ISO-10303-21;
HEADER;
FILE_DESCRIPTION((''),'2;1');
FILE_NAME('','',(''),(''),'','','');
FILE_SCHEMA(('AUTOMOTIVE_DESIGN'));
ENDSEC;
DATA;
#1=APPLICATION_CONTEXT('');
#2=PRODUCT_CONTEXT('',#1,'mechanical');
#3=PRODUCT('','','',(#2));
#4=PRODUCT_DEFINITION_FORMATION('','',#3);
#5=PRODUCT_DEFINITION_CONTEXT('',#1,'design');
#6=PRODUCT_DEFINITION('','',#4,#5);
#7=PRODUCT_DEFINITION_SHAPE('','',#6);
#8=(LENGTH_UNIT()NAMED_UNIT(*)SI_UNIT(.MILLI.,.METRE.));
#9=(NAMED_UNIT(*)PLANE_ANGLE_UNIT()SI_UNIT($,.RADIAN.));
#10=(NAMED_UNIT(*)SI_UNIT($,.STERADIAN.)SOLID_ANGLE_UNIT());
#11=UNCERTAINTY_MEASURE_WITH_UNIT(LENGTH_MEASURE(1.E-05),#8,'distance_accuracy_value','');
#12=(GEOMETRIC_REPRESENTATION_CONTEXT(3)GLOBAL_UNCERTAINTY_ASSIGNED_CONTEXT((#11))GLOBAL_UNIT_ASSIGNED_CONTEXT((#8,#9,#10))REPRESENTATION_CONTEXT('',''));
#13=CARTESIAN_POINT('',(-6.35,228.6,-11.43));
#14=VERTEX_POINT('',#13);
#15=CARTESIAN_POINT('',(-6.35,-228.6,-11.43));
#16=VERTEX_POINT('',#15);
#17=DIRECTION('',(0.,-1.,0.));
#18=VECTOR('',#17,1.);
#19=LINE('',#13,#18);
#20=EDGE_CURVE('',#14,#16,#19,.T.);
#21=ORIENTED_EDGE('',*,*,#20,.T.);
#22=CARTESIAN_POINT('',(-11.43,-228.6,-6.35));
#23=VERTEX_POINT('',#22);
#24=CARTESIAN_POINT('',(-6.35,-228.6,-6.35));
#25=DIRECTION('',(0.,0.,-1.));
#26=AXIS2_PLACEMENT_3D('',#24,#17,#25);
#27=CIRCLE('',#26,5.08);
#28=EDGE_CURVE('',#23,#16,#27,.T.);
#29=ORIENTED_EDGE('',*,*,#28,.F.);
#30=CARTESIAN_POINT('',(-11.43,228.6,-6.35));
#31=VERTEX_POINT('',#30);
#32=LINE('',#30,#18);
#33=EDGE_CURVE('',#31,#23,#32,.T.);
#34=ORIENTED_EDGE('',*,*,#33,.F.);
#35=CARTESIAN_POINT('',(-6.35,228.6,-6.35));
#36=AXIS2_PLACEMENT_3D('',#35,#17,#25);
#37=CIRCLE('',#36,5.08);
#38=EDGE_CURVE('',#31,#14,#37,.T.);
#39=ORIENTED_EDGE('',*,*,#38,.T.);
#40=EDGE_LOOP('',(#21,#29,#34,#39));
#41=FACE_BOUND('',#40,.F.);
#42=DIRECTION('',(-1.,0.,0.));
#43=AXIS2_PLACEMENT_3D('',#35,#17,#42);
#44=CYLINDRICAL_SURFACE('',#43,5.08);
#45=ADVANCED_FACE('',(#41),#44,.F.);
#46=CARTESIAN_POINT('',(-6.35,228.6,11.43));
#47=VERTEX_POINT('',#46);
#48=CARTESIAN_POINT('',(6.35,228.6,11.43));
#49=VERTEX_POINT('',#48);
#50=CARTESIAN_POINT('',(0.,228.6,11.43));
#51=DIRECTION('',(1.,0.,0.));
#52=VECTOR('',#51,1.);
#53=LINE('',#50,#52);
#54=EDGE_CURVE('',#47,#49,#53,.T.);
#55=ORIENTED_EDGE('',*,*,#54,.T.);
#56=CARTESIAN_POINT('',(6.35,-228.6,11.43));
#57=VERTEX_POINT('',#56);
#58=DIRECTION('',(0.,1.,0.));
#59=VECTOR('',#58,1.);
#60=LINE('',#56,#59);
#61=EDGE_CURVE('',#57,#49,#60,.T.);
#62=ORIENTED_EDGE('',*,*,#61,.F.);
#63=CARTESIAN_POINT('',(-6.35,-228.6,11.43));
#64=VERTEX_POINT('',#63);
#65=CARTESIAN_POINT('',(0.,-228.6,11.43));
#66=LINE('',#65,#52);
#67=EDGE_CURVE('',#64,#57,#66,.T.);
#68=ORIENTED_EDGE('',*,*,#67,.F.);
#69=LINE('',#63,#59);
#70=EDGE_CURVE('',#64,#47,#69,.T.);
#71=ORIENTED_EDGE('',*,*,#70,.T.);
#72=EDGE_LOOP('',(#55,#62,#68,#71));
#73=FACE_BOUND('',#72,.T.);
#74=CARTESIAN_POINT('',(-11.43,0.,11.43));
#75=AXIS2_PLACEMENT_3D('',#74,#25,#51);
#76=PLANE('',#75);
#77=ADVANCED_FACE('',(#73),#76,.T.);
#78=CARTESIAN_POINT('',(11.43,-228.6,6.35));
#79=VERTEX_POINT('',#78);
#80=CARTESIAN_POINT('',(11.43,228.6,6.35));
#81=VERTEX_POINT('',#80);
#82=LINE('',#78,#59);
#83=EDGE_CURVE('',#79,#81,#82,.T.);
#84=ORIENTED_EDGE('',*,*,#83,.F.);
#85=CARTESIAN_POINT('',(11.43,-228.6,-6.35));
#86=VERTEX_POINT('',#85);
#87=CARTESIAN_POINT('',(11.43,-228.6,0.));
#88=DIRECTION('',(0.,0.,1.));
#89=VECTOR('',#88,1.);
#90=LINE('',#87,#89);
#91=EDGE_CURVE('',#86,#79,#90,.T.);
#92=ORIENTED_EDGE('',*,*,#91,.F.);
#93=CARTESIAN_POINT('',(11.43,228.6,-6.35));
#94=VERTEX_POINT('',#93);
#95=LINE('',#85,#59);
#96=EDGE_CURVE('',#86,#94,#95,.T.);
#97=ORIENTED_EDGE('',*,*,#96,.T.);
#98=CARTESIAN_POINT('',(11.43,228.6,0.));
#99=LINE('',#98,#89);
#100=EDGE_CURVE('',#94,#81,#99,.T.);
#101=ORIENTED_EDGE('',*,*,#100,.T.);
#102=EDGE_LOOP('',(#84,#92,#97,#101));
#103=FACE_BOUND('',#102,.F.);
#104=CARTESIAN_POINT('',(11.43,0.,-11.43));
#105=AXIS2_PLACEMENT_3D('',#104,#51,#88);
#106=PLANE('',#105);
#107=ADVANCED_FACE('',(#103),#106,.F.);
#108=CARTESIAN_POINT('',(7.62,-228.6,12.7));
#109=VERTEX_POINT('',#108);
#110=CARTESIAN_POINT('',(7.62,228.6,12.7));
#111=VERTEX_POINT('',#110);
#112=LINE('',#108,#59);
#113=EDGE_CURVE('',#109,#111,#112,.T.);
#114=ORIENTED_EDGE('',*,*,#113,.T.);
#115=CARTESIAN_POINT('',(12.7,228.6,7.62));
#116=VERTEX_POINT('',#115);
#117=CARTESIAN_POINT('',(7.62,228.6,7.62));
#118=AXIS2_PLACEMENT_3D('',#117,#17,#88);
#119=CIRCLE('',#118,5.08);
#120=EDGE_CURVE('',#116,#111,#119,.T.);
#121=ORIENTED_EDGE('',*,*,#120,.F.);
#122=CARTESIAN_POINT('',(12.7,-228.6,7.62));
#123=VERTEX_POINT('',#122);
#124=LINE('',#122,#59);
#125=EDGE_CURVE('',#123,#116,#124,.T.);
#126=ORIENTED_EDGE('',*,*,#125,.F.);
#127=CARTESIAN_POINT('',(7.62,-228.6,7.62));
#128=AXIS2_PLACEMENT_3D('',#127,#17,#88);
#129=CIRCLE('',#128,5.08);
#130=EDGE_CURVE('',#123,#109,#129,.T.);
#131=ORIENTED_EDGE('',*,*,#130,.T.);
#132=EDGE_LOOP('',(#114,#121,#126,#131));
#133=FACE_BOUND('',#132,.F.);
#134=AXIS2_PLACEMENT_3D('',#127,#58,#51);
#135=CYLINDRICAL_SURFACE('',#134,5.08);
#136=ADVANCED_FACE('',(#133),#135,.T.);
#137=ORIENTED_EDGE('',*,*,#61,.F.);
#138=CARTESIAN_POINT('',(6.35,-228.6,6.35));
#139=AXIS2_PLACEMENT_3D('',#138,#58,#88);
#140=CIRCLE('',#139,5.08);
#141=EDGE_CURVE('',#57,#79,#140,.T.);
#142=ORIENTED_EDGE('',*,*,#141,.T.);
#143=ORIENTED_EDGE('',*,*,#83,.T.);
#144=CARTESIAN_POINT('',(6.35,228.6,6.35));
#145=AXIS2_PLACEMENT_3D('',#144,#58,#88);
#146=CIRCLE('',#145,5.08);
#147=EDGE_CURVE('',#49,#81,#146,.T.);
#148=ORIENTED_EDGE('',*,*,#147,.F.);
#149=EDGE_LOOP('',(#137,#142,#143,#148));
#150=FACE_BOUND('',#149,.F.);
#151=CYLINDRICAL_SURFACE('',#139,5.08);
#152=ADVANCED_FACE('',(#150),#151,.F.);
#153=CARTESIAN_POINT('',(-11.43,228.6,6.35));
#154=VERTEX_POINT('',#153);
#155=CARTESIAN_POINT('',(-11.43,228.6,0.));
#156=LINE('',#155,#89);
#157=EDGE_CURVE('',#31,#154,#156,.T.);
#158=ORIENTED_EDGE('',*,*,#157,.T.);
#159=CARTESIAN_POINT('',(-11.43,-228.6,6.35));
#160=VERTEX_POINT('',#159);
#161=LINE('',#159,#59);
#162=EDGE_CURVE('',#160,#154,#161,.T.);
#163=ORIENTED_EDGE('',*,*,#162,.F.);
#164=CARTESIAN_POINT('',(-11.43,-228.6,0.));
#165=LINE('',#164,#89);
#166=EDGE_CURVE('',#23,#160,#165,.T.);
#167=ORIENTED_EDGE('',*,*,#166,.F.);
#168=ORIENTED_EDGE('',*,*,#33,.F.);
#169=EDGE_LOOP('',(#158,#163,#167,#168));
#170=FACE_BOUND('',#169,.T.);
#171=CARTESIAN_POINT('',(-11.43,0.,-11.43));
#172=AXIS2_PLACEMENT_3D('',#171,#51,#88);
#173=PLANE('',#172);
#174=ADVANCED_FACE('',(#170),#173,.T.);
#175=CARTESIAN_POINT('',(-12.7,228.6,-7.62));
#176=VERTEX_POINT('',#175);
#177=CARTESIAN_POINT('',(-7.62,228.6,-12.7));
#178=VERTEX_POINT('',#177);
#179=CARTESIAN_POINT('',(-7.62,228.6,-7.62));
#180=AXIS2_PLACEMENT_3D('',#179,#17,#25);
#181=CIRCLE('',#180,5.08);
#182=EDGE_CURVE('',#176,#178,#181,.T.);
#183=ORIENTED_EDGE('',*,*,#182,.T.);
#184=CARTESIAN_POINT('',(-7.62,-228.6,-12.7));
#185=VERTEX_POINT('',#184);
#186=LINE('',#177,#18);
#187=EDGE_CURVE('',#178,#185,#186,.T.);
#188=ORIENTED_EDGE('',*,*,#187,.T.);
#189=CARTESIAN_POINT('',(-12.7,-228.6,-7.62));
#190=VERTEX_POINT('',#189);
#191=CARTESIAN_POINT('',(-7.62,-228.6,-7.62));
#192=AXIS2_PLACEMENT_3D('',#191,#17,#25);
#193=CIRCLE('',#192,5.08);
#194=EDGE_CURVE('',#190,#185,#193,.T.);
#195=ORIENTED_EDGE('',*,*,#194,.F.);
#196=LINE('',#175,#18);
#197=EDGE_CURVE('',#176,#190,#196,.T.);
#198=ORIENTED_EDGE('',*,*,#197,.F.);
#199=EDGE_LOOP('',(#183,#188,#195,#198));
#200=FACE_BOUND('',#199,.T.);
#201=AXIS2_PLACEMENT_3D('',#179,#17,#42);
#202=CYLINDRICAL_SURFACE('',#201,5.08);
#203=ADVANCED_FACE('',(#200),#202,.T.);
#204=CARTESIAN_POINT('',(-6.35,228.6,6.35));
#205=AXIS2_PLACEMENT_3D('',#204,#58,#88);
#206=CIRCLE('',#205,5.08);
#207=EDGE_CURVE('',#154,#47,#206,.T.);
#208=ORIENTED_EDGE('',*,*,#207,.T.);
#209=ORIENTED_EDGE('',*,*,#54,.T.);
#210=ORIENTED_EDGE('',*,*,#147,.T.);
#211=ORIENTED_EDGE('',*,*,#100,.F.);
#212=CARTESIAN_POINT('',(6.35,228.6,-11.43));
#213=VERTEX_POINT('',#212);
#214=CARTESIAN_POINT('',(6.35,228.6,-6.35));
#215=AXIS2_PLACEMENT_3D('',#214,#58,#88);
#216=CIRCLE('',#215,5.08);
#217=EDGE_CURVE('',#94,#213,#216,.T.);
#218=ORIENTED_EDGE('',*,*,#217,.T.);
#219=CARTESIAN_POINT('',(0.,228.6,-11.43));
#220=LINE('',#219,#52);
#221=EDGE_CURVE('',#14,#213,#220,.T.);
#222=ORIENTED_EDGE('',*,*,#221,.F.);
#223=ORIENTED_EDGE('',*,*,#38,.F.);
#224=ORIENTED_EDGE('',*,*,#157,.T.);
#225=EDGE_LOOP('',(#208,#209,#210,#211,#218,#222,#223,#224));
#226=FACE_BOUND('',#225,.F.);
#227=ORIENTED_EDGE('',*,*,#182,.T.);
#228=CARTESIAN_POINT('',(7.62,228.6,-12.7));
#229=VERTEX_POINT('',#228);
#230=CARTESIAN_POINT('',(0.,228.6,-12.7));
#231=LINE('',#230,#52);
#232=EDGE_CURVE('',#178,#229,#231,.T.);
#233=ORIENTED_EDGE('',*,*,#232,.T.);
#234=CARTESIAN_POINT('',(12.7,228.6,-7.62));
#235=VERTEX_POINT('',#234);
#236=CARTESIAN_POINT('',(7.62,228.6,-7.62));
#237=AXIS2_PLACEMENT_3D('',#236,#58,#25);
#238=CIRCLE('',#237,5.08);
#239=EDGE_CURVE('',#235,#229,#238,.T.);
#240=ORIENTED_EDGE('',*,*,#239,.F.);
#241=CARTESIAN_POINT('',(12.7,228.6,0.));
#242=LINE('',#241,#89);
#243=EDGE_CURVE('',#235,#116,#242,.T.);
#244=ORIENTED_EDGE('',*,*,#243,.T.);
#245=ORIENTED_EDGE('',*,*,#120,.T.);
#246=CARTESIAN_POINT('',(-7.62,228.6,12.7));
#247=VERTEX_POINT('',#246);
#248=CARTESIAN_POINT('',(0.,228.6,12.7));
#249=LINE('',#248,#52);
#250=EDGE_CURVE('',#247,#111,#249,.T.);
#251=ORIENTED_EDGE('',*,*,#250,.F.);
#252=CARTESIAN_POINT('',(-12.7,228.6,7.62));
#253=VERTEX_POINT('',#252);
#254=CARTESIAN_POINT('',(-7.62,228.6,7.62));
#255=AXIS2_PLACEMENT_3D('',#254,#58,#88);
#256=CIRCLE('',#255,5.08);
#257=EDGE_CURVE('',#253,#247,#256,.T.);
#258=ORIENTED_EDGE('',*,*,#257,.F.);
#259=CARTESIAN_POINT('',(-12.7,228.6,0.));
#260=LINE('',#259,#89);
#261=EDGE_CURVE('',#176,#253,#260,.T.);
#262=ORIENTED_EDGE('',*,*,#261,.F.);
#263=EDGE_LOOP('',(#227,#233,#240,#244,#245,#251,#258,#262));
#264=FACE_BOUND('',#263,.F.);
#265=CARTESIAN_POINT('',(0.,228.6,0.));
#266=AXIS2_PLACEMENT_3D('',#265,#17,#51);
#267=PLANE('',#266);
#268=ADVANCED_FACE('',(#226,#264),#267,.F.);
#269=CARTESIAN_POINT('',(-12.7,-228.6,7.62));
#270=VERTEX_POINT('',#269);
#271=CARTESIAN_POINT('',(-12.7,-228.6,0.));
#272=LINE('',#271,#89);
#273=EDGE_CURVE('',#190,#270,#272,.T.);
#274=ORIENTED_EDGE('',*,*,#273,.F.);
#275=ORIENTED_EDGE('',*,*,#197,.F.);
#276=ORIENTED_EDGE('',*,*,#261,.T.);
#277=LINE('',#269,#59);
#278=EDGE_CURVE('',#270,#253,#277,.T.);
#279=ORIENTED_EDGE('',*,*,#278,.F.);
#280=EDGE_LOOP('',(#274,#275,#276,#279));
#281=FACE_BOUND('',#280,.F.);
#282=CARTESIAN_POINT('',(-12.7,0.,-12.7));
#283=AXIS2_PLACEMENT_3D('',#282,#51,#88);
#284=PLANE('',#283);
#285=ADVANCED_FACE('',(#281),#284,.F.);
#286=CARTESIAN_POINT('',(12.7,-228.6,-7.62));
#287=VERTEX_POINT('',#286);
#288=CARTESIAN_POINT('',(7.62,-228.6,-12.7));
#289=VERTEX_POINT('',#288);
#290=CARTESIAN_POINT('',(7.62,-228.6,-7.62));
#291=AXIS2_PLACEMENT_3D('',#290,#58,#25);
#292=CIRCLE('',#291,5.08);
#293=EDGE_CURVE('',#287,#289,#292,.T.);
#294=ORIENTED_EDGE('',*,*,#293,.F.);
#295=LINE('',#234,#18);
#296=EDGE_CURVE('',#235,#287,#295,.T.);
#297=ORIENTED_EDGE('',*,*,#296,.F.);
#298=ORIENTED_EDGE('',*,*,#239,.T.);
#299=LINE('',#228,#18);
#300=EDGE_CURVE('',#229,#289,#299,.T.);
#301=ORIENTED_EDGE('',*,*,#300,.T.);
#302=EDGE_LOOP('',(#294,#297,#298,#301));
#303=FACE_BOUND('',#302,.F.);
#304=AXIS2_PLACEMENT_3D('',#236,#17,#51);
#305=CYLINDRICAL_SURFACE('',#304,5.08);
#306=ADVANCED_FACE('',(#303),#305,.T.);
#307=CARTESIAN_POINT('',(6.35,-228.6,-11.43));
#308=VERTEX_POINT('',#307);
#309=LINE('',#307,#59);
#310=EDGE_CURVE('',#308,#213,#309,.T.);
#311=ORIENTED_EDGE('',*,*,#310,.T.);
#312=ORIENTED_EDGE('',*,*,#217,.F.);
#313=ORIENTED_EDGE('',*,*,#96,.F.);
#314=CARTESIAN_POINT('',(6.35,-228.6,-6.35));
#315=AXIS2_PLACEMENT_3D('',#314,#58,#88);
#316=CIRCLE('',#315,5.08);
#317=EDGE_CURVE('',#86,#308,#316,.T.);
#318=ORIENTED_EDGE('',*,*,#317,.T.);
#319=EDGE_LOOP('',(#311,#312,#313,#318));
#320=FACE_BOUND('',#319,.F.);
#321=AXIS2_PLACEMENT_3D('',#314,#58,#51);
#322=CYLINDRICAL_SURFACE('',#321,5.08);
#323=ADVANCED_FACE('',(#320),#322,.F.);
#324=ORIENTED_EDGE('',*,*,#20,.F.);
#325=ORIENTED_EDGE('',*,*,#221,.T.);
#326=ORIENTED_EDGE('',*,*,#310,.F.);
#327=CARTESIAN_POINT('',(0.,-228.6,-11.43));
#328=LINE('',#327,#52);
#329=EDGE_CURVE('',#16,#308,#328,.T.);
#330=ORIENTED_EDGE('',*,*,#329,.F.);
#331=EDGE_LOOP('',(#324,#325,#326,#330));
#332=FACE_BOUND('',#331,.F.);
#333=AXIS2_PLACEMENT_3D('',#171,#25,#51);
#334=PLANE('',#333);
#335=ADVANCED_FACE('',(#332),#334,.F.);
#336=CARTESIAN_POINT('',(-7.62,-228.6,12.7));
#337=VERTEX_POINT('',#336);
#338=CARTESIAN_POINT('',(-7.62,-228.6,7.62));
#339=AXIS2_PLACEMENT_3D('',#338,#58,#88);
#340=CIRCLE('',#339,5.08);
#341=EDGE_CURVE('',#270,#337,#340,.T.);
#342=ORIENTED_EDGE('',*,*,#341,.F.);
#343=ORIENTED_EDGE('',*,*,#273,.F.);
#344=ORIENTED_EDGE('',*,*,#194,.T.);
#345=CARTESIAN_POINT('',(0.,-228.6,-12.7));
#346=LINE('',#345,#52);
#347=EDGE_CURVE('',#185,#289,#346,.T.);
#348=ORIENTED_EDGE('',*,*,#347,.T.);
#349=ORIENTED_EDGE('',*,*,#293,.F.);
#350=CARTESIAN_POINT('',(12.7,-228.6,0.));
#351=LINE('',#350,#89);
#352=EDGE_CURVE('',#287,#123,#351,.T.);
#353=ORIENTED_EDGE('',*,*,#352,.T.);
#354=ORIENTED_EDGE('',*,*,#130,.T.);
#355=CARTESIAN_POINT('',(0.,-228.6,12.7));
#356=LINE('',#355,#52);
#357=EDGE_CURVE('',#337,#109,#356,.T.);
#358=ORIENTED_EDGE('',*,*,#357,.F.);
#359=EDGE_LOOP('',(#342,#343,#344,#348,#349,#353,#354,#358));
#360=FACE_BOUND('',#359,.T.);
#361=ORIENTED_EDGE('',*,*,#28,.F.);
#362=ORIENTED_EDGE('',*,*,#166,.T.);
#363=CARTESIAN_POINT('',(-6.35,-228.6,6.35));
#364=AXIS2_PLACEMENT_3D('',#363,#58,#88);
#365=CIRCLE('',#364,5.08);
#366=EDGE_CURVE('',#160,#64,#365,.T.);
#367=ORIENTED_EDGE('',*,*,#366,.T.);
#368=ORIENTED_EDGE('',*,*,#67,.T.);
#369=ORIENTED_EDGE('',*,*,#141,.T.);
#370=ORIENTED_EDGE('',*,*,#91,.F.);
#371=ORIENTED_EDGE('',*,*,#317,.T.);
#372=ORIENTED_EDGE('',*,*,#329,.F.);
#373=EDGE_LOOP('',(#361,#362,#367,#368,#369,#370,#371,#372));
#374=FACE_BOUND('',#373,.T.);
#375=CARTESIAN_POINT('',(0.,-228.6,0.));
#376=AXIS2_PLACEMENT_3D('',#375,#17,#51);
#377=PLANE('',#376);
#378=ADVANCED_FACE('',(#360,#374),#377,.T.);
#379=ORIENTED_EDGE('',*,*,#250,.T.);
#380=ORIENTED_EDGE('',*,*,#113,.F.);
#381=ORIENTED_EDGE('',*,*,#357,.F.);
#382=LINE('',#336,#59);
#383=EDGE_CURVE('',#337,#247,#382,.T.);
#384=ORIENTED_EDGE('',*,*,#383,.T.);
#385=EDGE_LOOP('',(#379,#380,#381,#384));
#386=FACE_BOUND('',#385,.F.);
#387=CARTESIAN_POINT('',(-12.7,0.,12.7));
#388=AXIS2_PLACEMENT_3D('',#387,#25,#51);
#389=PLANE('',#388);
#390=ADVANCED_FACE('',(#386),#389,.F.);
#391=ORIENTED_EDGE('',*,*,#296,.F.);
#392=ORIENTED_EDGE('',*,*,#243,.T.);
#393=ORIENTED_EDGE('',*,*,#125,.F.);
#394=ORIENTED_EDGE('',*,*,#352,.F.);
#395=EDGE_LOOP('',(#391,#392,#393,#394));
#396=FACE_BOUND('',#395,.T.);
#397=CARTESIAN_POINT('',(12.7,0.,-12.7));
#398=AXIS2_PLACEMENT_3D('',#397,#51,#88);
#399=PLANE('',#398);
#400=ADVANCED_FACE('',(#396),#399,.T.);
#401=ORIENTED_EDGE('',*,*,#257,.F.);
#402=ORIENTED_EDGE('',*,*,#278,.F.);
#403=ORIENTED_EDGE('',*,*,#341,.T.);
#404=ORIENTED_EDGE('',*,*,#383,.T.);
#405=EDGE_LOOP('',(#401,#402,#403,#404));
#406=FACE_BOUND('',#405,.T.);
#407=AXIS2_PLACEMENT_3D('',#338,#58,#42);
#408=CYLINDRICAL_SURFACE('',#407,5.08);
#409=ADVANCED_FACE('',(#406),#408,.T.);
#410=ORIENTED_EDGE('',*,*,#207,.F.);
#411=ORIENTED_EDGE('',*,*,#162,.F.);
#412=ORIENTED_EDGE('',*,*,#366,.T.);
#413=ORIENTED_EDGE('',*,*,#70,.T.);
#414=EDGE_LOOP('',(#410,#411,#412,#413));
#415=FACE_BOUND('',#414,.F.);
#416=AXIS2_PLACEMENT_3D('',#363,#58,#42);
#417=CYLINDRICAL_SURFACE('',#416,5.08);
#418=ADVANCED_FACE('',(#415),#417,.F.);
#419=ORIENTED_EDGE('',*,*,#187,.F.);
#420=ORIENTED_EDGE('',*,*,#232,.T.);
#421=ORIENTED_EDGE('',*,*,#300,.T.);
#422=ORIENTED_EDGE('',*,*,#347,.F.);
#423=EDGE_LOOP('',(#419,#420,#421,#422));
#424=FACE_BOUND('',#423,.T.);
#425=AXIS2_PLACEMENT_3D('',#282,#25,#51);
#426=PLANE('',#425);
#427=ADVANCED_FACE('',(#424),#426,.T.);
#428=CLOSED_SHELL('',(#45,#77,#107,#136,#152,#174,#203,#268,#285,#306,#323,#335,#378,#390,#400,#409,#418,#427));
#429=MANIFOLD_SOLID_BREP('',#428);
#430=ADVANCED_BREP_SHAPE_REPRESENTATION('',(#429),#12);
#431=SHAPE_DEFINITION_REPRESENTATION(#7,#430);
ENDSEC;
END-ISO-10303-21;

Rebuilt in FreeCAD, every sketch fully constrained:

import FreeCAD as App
import Part
import Sketcher
Q = App.Units.Quantity


def edges_at(feature, points):
    """Names of the edges that pass closest to the given points."""
    edges = feature.Shape.Edges
    near = lambda p: min(range(len(edges)), key=lambda i: edges[i].distToShape(Part.Vertex(*p))[0])
    return sorted({f"Edge{near(p) + 1}" for p in points})


def add_polygon(sketch, points):
    """Adds a closed chain of lines whose ends are joined by coincident constraints."""
    first, n = sketch.GeometryCount, len(points)
    for a, b in zip(points, points[1:] + points[:1]):
        sketch.addGeometry(Part.LineSegment(App.Vector(*a, 0), App.Vector(*b, 0)), False)
    for i in range(n):
        sketch.addConstraint(Sketcher.Constraint("Coincident", first + i, 2, first + (i + 1) % n, 1))

doc = App.newDocument("Part")
body = doc.addObject("PartDesign::Body", "Body")

# Sketch on XZ plane
sketch1 = body.newObject("Sketcher::SketchObject", "Sketch")
sketch1.AttachmentSupport = (doc.getObject("XZ_Plane"), [""])
sketch1.MapMode = "FlatFace"
add_polygon(sketch1, [(-12.7, 12.7), (-12.7, -12.7), (12.7, -12.7), (12.7, 12.7)])  # lines 0-3
add_polygon(sketch1, [(11.43, -11.43), (-11.43, -11.43), (-11.43, 11.43), (11.43, 11.43)])  # lines 4-7
sketch1.addConstraint([
    Sketcher.Constraint("Vertical", 0),
    Sketcher.Constraint("Horizontal", 1),
    Sketcher.Constraint("Vertical", 2),
    Sketcher.Constraint("Horizontal", 3),
    Sketcher.Constraint("Horizontal", 4),
    Sketcher.Constraint("Vertical", 5),
    Sketcher.Constraint("Horizontal", 6),
    Sketcher.Constraint("Vertical", 7),
    Sketcher.Constraint("Symmetric", 0, 2, 2, 2, -1, 1),
    Sketcher.Constraint("Symmetric", 4, 2, 6, 2, -1, 1),
    Sketcher.Constraint("Equal", 3, 0),
    Sketcher.Constraint("Equal", 6, 5),
    Sketcher.Constraint("DistanceX", 1, 1, 1, 2, Q("1 in")),
    Sketcher.Constraint("DistanceX", 4, 2, 4, 1, Q("0.9 in")),
])
pad1 = body.newObject("PartDesign::Pad", "Pad")
pad1.Profile = sketch1
pad1.Length = Q("18 in")
pad1.Midplane = True
doc.recompute()

fillet = body.newObject("PartDesign::Fillet", "Fillet")
fillet.Base = (pad1, edges_at(pad1, [
    (-11.43, 0, 11.43),
    (11.43, 0, 11.43),
    (-11.43, 0, -11.43),
    (11.43, 0, -11.43),
    (-12.7, 0, 12.7),
    (12.7, 0, 12.7),
    (-12.7, 0, -12.7),
    (12.7, 0, -12.7),
]))
fillet.Radius = Q("0.2 in")

doc.recompute()
